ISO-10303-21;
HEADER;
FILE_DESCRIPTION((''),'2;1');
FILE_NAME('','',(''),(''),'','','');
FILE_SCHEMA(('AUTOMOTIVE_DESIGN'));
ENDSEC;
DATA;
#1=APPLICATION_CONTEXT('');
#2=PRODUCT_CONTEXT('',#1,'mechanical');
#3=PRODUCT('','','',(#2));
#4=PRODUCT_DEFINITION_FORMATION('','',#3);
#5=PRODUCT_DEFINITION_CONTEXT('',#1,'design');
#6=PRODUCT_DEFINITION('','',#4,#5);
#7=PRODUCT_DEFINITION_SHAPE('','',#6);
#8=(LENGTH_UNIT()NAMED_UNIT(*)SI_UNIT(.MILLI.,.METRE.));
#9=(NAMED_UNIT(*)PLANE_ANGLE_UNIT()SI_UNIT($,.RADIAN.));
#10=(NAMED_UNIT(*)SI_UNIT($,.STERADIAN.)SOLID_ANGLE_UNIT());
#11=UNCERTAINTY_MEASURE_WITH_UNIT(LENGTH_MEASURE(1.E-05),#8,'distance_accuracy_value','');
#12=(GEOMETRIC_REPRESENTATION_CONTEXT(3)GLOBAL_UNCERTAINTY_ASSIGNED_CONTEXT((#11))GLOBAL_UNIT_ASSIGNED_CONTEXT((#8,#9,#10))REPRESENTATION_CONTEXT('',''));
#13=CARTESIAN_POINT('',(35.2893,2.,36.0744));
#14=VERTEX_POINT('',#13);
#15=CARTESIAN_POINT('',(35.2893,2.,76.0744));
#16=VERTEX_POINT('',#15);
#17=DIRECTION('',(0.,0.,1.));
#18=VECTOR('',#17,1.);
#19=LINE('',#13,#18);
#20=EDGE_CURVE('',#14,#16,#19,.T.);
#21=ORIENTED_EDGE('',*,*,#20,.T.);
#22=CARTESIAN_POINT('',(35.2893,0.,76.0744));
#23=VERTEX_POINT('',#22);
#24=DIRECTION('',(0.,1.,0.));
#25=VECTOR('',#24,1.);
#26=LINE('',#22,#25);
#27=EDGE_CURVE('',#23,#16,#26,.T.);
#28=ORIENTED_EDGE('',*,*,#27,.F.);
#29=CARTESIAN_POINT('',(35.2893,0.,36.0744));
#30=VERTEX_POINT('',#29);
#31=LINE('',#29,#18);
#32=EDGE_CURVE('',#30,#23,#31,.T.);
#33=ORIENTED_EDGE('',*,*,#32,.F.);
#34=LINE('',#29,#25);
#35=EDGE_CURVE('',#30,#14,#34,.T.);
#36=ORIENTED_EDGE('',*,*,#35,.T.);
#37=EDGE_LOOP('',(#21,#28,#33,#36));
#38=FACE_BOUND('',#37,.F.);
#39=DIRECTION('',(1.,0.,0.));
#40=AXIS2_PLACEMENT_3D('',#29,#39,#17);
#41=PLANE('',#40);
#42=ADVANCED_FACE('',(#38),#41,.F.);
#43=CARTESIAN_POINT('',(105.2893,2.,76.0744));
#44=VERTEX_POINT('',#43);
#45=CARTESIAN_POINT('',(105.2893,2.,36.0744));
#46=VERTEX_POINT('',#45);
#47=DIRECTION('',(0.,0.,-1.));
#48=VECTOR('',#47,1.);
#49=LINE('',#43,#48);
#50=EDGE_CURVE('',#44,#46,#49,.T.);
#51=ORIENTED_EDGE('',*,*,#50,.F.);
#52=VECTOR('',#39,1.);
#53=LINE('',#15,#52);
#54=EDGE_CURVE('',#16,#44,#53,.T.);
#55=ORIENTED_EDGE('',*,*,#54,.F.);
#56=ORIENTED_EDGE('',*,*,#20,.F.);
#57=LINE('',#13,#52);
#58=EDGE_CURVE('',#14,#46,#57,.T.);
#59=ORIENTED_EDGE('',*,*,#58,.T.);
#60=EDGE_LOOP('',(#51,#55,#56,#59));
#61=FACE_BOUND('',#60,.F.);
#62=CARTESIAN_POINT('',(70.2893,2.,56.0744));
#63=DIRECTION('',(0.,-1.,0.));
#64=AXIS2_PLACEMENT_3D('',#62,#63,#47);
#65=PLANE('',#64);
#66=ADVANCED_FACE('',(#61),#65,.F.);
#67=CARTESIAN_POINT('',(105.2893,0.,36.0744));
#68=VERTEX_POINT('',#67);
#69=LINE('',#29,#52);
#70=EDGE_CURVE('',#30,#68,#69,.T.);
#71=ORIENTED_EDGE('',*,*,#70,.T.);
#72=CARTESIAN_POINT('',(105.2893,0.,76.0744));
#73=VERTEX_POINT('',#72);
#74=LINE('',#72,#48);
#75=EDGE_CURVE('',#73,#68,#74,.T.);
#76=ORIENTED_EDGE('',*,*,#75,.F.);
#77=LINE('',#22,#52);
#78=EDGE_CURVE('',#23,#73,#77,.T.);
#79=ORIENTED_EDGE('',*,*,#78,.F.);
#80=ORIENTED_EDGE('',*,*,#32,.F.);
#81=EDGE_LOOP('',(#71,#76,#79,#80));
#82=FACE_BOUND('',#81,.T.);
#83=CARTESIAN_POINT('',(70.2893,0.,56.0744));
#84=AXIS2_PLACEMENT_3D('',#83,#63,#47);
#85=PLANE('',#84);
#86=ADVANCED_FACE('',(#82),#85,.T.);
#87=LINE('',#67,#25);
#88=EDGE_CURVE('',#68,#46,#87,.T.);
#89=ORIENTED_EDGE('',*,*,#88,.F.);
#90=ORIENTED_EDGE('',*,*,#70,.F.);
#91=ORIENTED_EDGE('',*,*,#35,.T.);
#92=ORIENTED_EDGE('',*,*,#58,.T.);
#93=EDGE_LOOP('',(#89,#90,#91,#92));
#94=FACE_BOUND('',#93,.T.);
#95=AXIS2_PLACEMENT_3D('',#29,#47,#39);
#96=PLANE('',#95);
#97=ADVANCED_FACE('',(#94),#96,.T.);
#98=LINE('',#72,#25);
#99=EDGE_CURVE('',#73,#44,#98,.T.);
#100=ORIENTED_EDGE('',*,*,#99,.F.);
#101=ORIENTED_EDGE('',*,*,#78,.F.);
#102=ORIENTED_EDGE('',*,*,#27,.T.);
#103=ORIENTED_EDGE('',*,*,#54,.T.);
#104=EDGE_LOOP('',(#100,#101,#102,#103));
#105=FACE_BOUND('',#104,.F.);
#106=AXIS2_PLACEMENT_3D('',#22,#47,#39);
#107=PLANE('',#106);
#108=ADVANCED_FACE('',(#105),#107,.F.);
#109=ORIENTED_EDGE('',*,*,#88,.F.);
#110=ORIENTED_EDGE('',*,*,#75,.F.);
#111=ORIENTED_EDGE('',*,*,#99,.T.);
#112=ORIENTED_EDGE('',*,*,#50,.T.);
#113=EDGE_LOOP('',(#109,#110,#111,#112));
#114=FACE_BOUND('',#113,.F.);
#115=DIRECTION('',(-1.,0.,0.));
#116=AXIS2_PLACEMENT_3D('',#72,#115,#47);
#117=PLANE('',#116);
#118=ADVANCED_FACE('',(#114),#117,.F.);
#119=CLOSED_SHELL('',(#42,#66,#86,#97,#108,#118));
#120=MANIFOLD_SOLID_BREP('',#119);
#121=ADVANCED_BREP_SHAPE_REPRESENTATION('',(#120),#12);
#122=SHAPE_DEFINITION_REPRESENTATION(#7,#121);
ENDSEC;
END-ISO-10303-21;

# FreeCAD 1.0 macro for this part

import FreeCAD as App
import Part
import Sketcher

doc = App.newDocument("Part")
body = doc.addObject("PartDesign::Body", "Body")

sketch1 = body.newObject("Sketcher::SketchObject", "Sketch")
sketch1.AttachmentSupport = (doc.getObject("XZ_Plane"), [""])
sketch1.MapMode = "FlatFace"
sketch1.addGeometry(Part.LineSegment(App.Vector(35, 76, 0), App.Vector(35, 36, 0)), False)
sketch1.addGeometry(Part.LineSegment(App.Vector(35, 36, 0), App.Vector(105, 36, 0)), False)
sketch1.addGeometry(Part.LineSegment(App.Vector(105, 36, 0), App.Vector(105, 76, 0)), False)
sketch1.addGeometry(Part.LineSegment(App.Vector(105, 76, 0), App.Vector(35, 76, 0)), False)
sketch1.addConstraint(Sketcher.Constraint("Coincident", 0, 2, 1, 1))
sketch1.addConstraint(Sketcher.Constraint("Coincident", 1, 2, 2, 1))
sketch1.addConstraint(Sketcher.Constraint("Coincident", 2, 2, 3, 1))
sketch1.addConstraint(Sketcher.Constraint("Coincident", 3, 2, 0, 1))
sketch1.addConstraint(Sketcher.Constraint("Vertical", 0))
sketch1.addConstraint(Sketcher.Constraint("Horizontal", 1))
sketch1.addConstraint(Sketcher.Constraint("Vertical", 2))
sketch1.addConstraint(Sketcher.Constraint("Horizontal", 3))
sketch1.addConstraint(Sketcher.Constraint("DistanceX", 1, 1, 1, 2, 70.0))
sketch1.addConstraint(Sketcher.Constraint("DistanceY", 0, 2, 0, 1, 40.0))
sketch1.addConstraint(Sketcher.Constraint("DistanceX", -1, 1, 0, 2, 35.2893))
sketch1.addConstraint(Sketcher.Constraint("DistanceY", -1, 1, 0, 2, 36.0744))
pad1 = body.newObject("PartDesign::Pad", "Pad")
pad1.Profile = sketch1
pad1.Length = 2
pad1.Reversed = True

doc.recompute()
